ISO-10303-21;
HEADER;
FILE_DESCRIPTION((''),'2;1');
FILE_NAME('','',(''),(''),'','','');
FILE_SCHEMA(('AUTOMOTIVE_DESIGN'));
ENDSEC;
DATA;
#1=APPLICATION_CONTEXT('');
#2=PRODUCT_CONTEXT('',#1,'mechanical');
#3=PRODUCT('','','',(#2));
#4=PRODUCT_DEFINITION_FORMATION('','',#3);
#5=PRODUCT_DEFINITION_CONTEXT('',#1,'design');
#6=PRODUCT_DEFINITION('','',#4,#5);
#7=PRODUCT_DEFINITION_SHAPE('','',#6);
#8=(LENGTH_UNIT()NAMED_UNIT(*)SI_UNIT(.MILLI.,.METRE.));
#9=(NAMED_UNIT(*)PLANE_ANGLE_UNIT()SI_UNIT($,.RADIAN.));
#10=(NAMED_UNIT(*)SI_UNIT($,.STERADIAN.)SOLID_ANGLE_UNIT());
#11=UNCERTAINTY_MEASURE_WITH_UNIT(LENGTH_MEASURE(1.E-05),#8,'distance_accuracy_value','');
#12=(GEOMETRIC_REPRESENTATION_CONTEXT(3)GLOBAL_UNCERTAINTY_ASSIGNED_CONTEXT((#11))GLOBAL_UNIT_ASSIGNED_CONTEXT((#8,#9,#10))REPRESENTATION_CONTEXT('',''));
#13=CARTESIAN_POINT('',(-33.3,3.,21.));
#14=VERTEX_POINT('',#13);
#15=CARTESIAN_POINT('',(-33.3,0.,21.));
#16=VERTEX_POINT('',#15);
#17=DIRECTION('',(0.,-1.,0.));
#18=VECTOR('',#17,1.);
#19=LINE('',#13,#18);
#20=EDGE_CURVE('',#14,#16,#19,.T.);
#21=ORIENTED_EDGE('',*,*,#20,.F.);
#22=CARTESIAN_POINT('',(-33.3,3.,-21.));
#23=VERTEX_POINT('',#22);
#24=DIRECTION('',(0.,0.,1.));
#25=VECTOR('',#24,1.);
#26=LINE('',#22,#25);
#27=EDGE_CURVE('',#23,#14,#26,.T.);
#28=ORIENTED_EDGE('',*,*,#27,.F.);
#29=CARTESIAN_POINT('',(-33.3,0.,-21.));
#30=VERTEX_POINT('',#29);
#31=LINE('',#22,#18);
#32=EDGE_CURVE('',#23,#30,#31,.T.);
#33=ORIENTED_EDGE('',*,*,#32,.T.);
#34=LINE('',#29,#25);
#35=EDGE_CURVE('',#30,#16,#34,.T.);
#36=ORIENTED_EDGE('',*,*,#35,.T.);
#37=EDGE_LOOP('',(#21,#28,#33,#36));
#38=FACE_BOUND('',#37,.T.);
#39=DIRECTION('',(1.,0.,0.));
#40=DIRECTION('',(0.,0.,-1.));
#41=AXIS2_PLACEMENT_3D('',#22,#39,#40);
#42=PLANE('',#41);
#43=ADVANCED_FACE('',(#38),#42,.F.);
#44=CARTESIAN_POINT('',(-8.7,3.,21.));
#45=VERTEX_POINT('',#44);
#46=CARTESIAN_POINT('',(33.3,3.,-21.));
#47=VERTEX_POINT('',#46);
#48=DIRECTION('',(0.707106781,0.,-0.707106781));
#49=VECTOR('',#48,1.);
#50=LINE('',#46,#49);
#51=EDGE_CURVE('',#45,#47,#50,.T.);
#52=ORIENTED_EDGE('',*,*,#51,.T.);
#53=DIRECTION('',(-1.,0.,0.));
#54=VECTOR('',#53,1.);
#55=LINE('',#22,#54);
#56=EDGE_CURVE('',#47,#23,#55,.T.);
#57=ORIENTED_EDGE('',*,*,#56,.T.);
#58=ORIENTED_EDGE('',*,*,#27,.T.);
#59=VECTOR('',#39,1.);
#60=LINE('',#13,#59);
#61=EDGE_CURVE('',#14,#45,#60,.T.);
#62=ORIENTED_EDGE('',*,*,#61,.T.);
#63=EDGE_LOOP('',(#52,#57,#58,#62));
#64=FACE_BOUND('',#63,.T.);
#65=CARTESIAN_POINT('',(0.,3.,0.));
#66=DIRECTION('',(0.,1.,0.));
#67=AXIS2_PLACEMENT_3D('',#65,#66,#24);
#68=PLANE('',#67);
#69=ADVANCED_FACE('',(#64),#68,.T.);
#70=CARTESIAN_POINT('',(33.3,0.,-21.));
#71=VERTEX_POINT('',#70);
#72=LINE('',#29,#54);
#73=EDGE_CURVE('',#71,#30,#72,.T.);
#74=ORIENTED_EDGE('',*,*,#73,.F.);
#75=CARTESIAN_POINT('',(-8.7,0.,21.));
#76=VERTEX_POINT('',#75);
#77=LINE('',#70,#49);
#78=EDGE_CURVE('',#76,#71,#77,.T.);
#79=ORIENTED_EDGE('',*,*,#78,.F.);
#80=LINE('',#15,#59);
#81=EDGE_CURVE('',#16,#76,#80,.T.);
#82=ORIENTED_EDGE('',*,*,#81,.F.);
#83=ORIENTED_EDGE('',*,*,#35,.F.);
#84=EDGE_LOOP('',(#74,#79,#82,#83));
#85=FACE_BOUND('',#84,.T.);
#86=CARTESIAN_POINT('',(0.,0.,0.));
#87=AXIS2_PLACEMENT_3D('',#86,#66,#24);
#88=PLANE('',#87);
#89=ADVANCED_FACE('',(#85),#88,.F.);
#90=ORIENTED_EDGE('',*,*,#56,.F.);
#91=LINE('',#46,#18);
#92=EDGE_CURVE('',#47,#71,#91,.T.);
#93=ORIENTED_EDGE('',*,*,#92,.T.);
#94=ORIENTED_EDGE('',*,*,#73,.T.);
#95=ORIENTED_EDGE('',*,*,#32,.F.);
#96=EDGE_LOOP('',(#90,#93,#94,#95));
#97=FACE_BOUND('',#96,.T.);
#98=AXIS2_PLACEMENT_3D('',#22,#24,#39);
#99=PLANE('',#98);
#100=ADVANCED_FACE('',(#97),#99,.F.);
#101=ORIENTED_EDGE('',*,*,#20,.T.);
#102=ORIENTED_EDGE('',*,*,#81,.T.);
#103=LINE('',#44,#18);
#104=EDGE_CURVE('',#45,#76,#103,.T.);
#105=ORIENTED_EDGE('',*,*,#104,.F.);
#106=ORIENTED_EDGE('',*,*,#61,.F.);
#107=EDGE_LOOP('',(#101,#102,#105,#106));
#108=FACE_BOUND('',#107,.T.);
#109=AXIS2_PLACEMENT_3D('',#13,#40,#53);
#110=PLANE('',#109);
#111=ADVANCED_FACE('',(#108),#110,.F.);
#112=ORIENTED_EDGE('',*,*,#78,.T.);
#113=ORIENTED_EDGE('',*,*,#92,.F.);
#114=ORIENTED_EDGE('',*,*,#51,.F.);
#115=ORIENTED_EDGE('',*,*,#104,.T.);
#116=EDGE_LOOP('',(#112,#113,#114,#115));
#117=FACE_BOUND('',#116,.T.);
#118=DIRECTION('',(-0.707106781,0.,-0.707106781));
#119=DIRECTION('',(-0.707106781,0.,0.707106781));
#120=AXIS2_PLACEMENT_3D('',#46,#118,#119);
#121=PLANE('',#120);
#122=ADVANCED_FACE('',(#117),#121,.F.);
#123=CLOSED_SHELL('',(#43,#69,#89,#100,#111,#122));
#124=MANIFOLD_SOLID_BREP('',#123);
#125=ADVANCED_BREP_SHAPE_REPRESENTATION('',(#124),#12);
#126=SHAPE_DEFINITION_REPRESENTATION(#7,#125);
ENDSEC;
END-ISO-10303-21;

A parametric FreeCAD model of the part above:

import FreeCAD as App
import Part
import Sketcher
from FreeCAD import Vector
Q = App.Units.Quantity

doc = App.newDocument("Part")
body = doc.addObject("PartDesign::Body", "Body")

sketch1 = doc.addObject("Sketcher::SketchObject", "Sketch")
body.addObject(sketch1)
sketch1.AttachmentSupport = (doc.XZ_Plane, [""])
sketch1.MapMode = "FlatFace"
sketch1.addGeometry(Part.LineSegment(Vector(-9, 21, 0), Vector(33, -21, 0)), False)
sketch1.addGeometry(Part.LineSegment(Vector(33, -21, 0), Vector(-33, -21, 0)), False)
sketch1.addGeometry(Part.LineSegment(Vector(-33, -21, 0), Vector(-33, 21, 0)), False)
sketch1.addGeometry(Part.LineSegment(Vector(-33, 21, 0), Vector(-9, 21, 0)), False)
sketch1.addConstraint(Sketcher.Constraint("Coincident", 0, 2, 1, 1))
sketch1.addConstraint(Sketcher.Constraint("Coincident", 1, 2, 2, 1))
sketch1.addConstraint(Sketcher.Constraint("Coincident", 2, 2, 3, 1))
sketch1.addConstraint(Sketcher.Constraint("Coincident", 3, 2, 0, 1))
sketch1.addConstraint(Sketcher.Constraint("Horizontal", 1))
sketch1.addConstraint(Sketcher.Constraint("Vertical", 2))
sketch1.addConstraint(Sketcher.Constraint("Horizontal", 3))
sketch1.addConstraint(Sketcher.Constraint("Symmetric", 0, 2, 2, 2, -1, 1))
sketch1.addConstraint(Sketcher.Constraint("DistanceY", 2, 1, 2, 2, Q("42 mm")))
sketch1.addConstraint(Sketcher.Constraint("Angle", 0, Q("-45 deg")))
sketch1.addConstraint(Sketcher.Constraint("DistanceX", 1, 2, 1, 1, Q("66.6 mm")))
pad1 = doc.addObject("PartDesign::Pad", "Pad")
body.addObject(pad1)
pad1.Profile = sketch1
pad1.Length = 3
pad1.Reversed = True

doc.recompute()
